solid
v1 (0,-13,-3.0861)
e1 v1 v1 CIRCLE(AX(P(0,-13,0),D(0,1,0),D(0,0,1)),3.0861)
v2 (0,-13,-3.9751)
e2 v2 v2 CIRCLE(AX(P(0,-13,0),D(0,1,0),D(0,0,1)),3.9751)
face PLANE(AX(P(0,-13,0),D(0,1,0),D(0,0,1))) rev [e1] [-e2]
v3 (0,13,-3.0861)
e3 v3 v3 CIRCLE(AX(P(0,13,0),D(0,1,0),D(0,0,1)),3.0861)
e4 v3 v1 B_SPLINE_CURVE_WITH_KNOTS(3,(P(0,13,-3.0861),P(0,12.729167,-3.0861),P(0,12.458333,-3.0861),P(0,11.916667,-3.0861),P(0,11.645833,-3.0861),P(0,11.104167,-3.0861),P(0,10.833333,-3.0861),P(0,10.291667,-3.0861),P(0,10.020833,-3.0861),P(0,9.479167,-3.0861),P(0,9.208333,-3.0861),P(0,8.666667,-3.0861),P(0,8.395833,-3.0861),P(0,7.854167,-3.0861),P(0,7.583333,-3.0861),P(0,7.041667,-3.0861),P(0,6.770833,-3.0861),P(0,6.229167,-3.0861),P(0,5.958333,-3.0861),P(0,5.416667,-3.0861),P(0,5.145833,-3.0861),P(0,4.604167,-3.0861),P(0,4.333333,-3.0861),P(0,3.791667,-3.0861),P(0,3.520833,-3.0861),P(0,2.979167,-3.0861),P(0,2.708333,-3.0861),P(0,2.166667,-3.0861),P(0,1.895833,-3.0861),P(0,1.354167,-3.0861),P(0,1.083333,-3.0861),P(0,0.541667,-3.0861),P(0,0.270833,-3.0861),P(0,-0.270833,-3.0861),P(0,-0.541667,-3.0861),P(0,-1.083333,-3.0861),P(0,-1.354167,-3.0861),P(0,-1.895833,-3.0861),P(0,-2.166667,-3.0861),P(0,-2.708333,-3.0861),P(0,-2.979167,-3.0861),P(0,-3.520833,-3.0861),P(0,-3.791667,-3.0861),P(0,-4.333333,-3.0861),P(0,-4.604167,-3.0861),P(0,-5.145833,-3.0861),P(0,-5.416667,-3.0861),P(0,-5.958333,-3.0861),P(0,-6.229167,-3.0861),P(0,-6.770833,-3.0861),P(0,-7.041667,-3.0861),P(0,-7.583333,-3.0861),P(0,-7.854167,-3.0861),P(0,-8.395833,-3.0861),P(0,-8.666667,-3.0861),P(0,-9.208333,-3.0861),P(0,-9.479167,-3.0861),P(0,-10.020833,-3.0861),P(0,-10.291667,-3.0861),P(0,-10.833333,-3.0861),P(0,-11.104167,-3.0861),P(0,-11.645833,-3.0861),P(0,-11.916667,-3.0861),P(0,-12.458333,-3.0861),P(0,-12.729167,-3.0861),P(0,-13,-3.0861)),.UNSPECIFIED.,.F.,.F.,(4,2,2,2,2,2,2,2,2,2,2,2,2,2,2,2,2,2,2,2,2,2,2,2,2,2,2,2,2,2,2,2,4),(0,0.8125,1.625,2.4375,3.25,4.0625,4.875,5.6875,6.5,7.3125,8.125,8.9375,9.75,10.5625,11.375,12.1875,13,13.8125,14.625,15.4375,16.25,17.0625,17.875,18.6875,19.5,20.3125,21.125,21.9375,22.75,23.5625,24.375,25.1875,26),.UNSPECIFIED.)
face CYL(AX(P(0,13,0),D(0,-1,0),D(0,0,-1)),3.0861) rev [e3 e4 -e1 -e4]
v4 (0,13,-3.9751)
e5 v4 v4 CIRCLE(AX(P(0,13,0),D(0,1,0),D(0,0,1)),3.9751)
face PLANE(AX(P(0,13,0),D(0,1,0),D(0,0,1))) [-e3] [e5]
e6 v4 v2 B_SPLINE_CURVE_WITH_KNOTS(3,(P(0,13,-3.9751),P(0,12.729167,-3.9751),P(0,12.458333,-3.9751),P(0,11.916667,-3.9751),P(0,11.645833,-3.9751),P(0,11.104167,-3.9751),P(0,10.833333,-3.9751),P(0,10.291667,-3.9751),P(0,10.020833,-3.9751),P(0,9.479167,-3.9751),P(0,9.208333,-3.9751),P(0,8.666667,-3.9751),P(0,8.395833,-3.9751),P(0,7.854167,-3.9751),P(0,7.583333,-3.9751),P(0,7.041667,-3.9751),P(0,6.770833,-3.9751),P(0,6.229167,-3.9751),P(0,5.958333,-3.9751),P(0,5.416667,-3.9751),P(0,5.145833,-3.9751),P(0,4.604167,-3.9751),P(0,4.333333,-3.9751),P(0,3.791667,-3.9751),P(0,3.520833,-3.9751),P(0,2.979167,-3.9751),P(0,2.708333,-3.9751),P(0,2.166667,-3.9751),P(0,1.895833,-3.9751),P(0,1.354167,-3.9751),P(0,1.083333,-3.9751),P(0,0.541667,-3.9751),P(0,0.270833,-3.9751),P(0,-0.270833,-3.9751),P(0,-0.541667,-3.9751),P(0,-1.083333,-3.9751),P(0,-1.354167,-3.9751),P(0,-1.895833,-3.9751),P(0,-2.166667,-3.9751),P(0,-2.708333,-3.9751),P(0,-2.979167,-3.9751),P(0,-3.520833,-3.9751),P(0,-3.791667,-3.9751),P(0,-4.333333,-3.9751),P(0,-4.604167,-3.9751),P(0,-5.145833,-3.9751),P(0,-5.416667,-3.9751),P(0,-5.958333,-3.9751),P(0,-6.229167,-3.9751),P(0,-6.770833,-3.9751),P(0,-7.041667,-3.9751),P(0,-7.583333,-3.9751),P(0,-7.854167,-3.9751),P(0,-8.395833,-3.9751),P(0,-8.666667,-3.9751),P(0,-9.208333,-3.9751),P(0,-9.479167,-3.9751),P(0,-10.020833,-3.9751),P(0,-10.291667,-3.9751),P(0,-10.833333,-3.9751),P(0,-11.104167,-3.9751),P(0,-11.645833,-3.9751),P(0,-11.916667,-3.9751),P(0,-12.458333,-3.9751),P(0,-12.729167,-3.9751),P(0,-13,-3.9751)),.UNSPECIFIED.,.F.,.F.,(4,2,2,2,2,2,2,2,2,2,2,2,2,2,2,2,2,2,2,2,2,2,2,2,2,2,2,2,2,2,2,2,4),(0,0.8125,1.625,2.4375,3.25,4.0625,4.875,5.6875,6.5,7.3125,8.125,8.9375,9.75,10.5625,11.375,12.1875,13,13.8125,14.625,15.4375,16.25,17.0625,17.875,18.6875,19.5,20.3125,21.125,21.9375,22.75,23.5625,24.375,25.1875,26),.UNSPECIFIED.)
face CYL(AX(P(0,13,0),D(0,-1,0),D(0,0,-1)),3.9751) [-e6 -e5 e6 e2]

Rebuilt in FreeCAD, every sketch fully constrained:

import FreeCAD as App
import Part
import Sketcher
Q = App.Units.Quantity

doc = App.newDocument("Part")
body = doc.addObject("PartDesign::Body", "Body")

sketch1 = body.newObject("Sketcher::SketchObject", "Sketch")
sketch1.AttachmentSupport = (doc.getObject("XZ_Plane"), [""])
sketch1.MapMode = "FlatFace"
sketch1.addGeometry(Part.Circle(App.Vector(0, 0, 0), App.Vector(0, 0, 1), 4), False)
sketch1.addGeometry(Part.Circle(App.Vector(0, 0, 0), App.Vector(0, 0, 1), 3.1), False)
sketch1.addConstraint(Sketcher.Constraint("Coincident", 0, 3, -1, 1))
sketch1.addConstraint(Sketcher.Constraint("Coincident", 1, 3, -1, 1))
sketch1.addConstraint(Sketcher.Constraint("Diameter", 0, Q("0.313 in")))
sketch1.addConstraint(Sketcher.Constraint("Diameter", 1, Q("0.243 in")))
pad1 = body.newObject("PartDesign::Pad", "Pad")
pad1.Profile = sketch1
pad1.Length = 26
pad1.Midplane = True

doc.recompute()
